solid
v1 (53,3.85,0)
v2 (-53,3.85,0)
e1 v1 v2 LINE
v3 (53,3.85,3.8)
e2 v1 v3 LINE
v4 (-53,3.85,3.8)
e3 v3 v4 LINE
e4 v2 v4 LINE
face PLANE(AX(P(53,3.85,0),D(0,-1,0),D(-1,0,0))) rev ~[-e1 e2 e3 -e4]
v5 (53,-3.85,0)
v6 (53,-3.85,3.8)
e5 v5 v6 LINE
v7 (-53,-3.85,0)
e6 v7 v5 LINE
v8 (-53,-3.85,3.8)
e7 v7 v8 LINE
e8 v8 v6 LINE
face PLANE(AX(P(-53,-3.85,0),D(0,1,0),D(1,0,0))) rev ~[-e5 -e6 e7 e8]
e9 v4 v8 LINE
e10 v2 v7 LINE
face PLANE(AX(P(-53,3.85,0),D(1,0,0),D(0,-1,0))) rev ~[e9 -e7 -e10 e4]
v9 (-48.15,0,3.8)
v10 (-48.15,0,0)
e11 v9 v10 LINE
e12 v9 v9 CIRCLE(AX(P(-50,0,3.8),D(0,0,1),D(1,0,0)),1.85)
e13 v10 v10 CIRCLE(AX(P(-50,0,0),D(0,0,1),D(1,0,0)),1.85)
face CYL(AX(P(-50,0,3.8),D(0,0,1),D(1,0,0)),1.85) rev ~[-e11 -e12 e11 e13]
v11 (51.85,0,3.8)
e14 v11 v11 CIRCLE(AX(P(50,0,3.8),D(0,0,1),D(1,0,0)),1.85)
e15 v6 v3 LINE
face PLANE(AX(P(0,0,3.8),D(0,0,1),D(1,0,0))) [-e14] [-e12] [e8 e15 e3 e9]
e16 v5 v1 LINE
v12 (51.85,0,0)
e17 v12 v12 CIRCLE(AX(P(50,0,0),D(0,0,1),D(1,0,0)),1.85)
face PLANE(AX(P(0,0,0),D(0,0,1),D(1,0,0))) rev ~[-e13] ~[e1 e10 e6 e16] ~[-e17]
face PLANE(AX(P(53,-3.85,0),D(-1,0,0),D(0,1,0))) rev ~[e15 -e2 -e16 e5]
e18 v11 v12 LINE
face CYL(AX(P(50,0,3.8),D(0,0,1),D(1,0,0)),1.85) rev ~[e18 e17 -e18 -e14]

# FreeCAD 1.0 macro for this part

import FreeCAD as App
import Part
import Sketcher

V = App.Vector


def add_polygon(sketch, points):
    """Adds a closed chain of lines whose ends are joined by coincident constraints."""
    first, n = sketch.GeometryCount, len(points)
    for a, b in zip(points, points[1:] + points[:1]):
        sketch.addGeometry(Part.LineSegment(App.Vector(*a, 0), App.Vector(*b, 0)), False)
    for i in range(n):
        sketch.addConstraint(Sketcher.Constraint("Coincident", first + i, 2, first + (i + 1) % n, 1))

doc = App.newDocument("Part")
params = doc.addObject("Spreadsheet::Sheet", "Params")
for row, (alias, value) in enumerate([
    ("sketch1_width", "106 mm"),
    ("sketch1_height", "7.7 mm"),
    ("pad1_length", "3.8 mm"),
    ("sketch2_diameter", "3.7 mm"),
], start=1):
    params.set(f"A{row}", alias)
    params.set(f"B{row}", "=" + value)
    params.setAlias(f"B{row}", alias)

body = doc.addObject("PartDesign::Body", "Body")

# Sketch on XY plane
sketch1 = body.newObject("Sketcher::SketchObject", "Sketch")
sketch1.AttachmentSupport = (doc.getObject("XY_Plane"), [""])
sketch1.MapMode = "FlatFace"
add_polygon(sketch1, [(-53, 4), (-53, -4), (53, -4), (53, 4)])  # lines 0-3
sketch1.addConstraint(Sketcher.Constraint("Vertical", 0))
sketch1.addConstraint(Sketcher.Constraint("Horizontal", 1))
sketch1.addConstraint(Sketcher.Constraint("Vertical", 2))
sketch1.addConstraint(Sketcher.Constraint("Horizontal", 3))
sketch1.addConstraint(Sketcher.Constraint("Symmetric", 0, 2, 2, 2, -1, 1))
sketch1.addConstraint(Sketcher.Constraint("DistanceX", 1, 1, 1, 2, 106.0))
sketch1.addConstraint(Sketcher.Constraint("DistanceY", 0, 2, 0, 1, 7.7))
sketch1.setExpression("Constraints[9]", "Params.sketch1_width")
sketch1.setExpression("Constraints[10]", "Params.sketch1_height")
pad1 = body.newObject("PartDesign::Pad", "Pad")
pad1.Profile = sketch1
pad1.setExpression("Length", "Params.pad1_length")

# Sketch on XY plane
sketch2 = body.newObject("Sketcher::SketchObject", "Sketch001")
sketch2.AttachmentSupport = (doc.getObject("XY_Plane"), [""])
sketch2.MapMode = "FlatFace"
sketch2.AttachmentOffset = App.Placement(V(0, 0, 3.8), App.Rotation())
sketch2.addGeometry(Part.Circle(V(50, 0, 0), V(0, 0, 1), 1.9), False)
sketch2.addGeometry(Part.Circle(V(-50, 0, 0), V(0, 0, 1), 1.9), False)
sketch2.addConstraint(Sketcher.Constraint("Equal", 0, 1))
sketch2.addConstraint(Sketcher.Constraint("Symmetric", 0, 3, 1, 3, -1, 1))
sketch2.addConstraint(Sketcher.Constraint("PointOnObject", 0, 3, -1))
sketch2.addConstraint(Sketcher.Constraint("Diameter", 0, 3.7))
sketch2.addConstraint(Sketcher.Constraint("DistanceX", -1, 1, 0, 3, 50.0))
sketch2.setExpression("Constraints[3]", "Params.sketch2_diameter")
pocket1 = body.newObject("PartDesign::Pocket", "Pocket")
pocket1.Profile = sketch2
pocket1.Type = "ThroughAll"

doc.recompute()
